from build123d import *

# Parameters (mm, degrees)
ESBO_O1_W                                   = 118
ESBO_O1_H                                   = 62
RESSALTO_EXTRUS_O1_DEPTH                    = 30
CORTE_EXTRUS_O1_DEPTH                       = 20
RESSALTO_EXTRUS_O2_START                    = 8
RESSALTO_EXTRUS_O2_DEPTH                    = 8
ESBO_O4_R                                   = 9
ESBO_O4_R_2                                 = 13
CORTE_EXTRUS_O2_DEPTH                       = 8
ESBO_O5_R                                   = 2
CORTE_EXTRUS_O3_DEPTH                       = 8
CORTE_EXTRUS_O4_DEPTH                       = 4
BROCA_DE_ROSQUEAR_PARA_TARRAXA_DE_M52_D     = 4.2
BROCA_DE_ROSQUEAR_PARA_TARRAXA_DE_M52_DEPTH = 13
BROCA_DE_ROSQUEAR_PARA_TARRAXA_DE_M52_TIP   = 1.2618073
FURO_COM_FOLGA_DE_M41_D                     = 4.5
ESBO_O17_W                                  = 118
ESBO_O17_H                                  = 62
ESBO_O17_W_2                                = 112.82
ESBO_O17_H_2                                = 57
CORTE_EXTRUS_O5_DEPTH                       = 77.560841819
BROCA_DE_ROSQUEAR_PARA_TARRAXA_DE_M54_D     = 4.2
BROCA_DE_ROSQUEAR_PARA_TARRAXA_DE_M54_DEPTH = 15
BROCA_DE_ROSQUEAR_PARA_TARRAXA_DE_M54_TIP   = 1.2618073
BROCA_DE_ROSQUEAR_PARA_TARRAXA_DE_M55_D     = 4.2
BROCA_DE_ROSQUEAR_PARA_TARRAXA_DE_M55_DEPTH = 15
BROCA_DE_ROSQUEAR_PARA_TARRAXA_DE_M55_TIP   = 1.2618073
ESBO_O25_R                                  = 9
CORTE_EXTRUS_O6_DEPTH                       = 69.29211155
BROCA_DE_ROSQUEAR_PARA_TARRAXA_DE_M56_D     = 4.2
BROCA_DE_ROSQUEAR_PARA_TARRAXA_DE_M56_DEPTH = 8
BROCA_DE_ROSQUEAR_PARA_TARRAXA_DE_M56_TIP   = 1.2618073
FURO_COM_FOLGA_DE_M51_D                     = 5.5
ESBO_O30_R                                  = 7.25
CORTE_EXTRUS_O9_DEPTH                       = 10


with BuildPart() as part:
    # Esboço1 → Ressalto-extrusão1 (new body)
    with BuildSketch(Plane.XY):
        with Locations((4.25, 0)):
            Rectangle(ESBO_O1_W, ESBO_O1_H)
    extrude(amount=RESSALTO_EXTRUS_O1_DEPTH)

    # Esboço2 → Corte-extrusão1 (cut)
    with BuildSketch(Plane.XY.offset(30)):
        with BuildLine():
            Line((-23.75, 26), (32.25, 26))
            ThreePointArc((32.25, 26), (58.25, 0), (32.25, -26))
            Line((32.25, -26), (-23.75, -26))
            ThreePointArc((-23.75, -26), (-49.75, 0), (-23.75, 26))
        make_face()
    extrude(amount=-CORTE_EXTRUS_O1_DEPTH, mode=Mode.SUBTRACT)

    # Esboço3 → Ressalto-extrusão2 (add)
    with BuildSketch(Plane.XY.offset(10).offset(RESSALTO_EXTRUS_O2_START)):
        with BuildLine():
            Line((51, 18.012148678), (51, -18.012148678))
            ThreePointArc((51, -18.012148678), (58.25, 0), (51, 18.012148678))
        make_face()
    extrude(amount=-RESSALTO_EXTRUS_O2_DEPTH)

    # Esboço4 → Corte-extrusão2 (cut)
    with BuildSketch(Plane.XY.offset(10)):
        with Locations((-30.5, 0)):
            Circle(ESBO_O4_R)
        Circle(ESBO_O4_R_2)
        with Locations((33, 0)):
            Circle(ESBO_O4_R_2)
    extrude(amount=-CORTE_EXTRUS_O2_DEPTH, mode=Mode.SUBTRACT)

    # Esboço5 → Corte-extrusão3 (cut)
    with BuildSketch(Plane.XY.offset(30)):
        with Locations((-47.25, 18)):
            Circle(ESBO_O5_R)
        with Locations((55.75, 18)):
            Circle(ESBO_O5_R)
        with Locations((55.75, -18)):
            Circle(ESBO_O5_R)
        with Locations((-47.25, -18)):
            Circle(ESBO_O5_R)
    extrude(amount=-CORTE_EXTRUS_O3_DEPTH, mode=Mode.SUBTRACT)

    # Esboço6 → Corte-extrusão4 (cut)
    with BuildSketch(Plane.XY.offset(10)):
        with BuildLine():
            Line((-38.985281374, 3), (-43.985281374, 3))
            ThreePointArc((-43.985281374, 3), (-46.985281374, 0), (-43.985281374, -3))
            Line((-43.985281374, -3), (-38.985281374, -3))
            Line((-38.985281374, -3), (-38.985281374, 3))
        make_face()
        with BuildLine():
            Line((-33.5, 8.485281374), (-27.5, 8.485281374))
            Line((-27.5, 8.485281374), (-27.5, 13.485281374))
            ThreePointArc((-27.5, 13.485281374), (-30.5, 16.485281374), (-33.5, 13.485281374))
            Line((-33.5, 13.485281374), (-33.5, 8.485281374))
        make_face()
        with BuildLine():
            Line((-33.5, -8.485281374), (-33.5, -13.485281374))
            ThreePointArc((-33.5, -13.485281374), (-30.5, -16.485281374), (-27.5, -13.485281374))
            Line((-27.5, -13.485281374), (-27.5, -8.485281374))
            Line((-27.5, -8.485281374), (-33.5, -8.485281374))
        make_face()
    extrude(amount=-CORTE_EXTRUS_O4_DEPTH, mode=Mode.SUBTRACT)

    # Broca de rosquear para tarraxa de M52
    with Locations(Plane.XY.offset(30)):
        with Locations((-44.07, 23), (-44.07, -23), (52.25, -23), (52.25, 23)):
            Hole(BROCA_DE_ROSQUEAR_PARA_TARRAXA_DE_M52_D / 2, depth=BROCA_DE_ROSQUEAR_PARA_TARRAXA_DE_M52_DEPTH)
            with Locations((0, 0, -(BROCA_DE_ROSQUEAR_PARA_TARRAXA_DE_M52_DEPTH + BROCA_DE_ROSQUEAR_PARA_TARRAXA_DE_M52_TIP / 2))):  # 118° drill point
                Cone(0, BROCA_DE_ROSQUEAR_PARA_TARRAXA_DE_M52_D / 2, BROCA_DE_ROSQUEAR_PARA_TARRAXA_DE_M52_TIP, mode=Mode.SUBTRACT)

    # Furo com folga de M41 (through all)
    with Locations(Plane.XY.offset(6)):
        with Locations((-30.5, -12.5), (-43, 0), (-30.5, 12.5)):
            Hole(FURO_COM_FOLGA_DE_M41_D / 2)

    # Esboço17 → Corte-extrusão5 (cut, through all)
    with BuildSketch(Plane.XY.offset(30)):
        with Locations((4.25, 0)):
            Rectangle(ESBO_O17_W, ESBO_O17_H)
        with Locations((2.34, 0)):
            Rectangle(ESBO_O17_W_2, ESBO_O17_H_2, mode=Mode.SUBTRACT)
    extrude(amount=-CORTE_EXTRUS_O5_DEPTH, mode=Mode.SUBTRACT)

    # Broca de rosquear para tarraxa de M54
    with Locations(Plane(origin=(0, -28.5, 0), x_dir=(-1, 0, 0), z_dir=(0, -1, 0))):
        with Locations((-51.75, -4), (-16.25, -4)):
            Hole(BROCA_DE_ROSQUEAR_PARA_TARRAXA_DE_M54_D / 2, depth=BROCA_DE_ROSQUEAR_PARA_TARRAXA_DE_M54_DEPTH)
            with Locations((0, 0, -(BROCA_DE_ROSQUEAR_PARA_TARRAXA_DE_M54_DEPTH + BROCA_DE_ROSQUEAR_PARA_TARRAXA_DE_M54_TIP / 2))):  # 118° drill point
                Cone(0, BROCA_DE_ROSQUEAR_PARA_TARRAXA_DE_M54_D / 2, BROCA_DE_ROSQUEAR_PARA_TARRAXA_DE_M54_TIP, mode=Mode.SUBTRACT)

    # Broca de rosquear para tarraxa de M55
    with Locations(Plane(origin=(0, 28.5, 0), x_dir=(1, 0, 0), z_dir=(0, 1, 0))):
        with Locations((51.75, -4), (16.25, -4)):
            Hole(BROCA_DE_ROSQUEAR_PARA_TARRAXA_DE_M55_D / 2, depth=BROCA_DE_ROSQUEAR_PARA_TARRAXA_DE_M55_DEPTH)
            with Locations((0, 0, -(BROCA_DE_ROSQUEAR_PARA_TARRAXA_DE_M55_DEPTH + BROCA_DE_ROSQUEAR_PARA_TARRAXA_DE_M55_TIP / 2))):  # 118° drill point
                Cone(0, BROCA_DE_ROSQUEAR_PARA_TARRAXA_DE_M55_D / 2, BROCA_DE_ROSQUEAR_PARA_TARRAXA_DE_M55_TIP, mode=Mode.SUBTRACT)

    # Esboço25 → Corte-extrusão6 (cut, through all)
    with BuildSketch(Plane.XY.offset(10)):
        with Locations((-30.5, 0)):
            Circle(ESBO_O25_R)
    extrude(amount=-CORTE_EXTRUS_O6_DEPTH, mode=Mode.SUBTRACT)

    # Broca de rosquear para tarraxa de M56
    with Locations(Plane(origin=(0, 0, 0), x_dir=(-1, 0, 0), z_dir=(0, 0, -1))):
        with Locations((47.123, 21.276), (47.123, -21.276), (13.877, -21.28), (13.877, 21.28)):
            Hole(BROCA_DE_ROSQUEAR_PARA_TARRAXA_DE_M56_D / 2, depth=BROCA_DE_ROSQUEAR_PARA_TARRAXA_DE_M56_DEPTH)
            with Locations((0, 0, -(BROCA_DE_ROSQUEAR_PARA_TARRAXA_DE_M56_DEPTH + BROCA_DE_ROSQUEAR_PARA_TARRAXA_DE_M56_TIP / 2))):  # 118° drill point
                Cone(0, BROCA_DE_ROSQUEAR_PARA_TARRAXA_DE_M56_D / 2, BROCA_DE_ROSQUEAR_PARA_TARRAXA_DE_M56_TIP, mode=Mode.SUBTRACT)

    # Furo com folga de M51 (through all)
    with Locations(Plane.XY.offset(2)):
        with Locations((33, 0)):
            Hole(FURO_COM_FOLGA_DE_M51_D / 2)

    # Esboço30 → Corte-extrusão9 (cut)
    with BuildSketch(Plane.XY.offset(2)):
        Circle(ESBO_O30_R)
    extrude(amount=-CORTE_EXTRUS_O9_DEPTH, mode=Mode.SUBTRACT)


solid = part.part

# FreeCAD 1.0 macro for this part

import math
import FreeCAD as App
import Part
import Sketcher

doc = App.newDocument("Part")
body = doc.addObject("PartDesign::Body", "Body")

sketch1 = body.newObject("Sketcher::SketchObject", "Sketch")
sketch1.AttachmentSupport = (doc.getObject("XY_Plane"), [""])
sketch1.MapMode = "FlatFace"
sketch1.addGeometry(Part.LineSegment(App.Vector(-55, 31, 0), App.Vector(-55, -31, 0)), False)
sketch1.addGeometry(Part.LineSegment(App.Vector(-55, -31, 0), App.Vector(63, -31, 0)), False)
sketch1.addGeometry(Part.LineSegment(App.Vector(63, -31, 0), App.Vector(63, 31, 0)), False)
sketch1.addGeometry(Part.LineSegment(App.Vector(63, 31, 0), App.Vector(-55, 31, 0)), False)
sketch1.addConstraint(Sketcher.Constraint("Coincident", 0, 2, 1, 1))
sketch1.addConstraint(Sketcher.Constraint("Coincident", 1, 2, 2, 1))
sketch1.addConstraint(Sketcher.Constraint("Coincident", 2, 2, 3, 1))
sketch1.addConstraint(Sketcher.Constraint("Coincident", 3, 2, 0, 1))
sketch1.addConstraint(Sketcher.Constraint("Vertical", 0))
sketch1.addConstraint(Sketcher.Constraint("Horizontal", 1))
sketch1.addConstraint(Sketcher.Constraint("Vertical", 2))
sketch1.addConstraint(Sketcher.Constraint("Horizontal", 3))
sketch1.addConstraint(Sketcher.Constraint("DistanceX", 1, 1, 1, 2, 118.0))
sketch1.addConstraint(Sketcher.Constraint("DistanceY", 0, 2, 0, 1, 62.0))
sketch1.addConstraint(Sketcher.Constraint("DistanceY", 0, 2, -1, 1, 31.0))
sketch1.addConstraint(Sketcher.Constraint("DistanceX", 0, 2, -1, 1, 54.75))
pad1 = body.newObject("PartDesign::Pad", "Pad")
pad1.Profile = sketch1
pad1.Length = 30

sketch2 = body.newObject("Sketcher::SketchObject", "Sketch001")
sketch2.AttachmentSupport = (doc.getObject("XY_Plane"), [""])
sketch2.MapMode = "FlatFace"
sketch2.AttachmentOffset = App.Placement(App.Vector(0, 0, 30), App.Rotation())
sketch2.addGeometry(Part.LineSegment(App.Vector(32, 26, 0), App.Vector(-24, 26, 0)), False)
sketch2.addGeometry(Part.ArcOfCircle(Part.Circle(App.Vector(-24, 0, 0), App.Vector(0, 0, 1), 26), math.radians(90), math.radians(270)), False)
sketch2.addGeometry(Part.LineSegment(App.Vector(-24, -26, 0), App.Vector(32, -26, 0)), False)
sketch2.addGeometry(Part.ArcOfCircle(Part.Circle(App.Vector(32, 0, 0), App.Vector(0, 0, 1), 26), math.radians(-90), math.radians(90)), False)
sketch2.addConstraint(Sketcher.Constraint("Tangent", 0, 2, 1, 1))
sketch2.addConstraint(Sketcher.Constraint("Tangent", 1, 2, 2, 1))
sketch2.addConstraint(Sketcher.Constraint("Tangent", 2, 2, 3, 1))
sketch2.addConstraint(Sketcher.Constraint("Tangent", 3, 2, 0, 1))
sketch2.addConstraint(Sketcher.Constraint("Horizontal", 0))
sketch2.addConstraint(Sketcher.Constraint("Horizontal", 2))
sketch2.addConstraint(Sketcher.Constraint("PointOnObject", 1, 3, -1))
sketch2.addConstraint(Sketcher.Constraint("Radius", 1, 26.0))
sketch2.addConstraint(Sketcher.Constraint("DistanceX", 0, 2, 0, 1, 56.0))
sketch2.addConstraint(Sketcher.Constraint("DistanceX", 1, 3, -1, 1, 23.75))
pocket1 = body.newObject("PartDesign::Pocket", "Pocket")
pocket1.Profile = sketch2
pocket1.Length = 20

sketch3 = body.newObject("Sketcher::SketchObject", "Sketch002")
sketch3.AttachmentSupport = (doc.getObject("XY_Plane"), [""])
sketch3.MapMode = "FlatFace"
sketch3.AttachmentOffset = App.Placement(App.Vector(0, 0, 18), App.Rotation())
sketch3.addGeometry(Part.LineSegment(App.Vector(51, 18, 0), App.Vector(51, -18, 0)), False)
sketch3.addGeometry(Part.ArcOfCircle(Part.Circle(App.Vector(32, 0, 0), App.Vector(0, 0, 1), 26), math.radians(-44), math.radians(44)), False)
sketch3.addConstraint(Sketcher.Constraint("Coincident", 0, 1, 1, 2))
sketch3.addConstraint(Sketcher.Constraint("Coincident", 1, 1, 0, 2))
sketch3.addConstraint(Sketcher.Constraint("Vertical", 0))
sketch3.addConstraint(Sketcher.Constraint("PointOnObject", 1, 3, -1))
sketch3.addConstraint(Sketcher.Constraint("Radius", 1, 26.0))
sketch3.addConstraint(Sketcher.Constraint("DistanceX", -1, 1, 0, 1, 51.0))
sketch3.addConstraint(Sketcher.Constraint("DistanceX", -1, 1, 1, 3, 32.25))
pad2 = body.newObject("PartDesign::Pad", "Pad001")
pad2.Profile = sketch3
pad2.Length = 8
pad2.Reversed = True

sketch4 = body.newObject("Sketcher::SketchObject", "Sketch003")
sketch4.AttachmentSupport = (doc.getObject("XY_Plane"), [""])
sketch4.MapMode = "FlatFace"
sketch4.AttachmentOffset = App.Placement(App.Vector(0, 0, 10), App.Rotation())
sketch4.addGeometry(Part.Circle(App.Vector(-30, 0, 0), App.Vector(0, 0, 1), 9), False)
sketch4.addGeometry(Part.Circle(App.Vector(0, 0, 0), App.Vector(0, 0, 1), 13), False)
sketch4.addGeometry(Part.Circle(App.Vector(33, 0, 0), App.Vector(0, 0, 1), 13), False)
sketch4.addConstraint(Sketcher.Constraint("Coincident", 1, 3, -1, 1))
sketch4.addConstraint(Sketcher.Constraint("Equal", 1, 2))
sketch4.addConstraint(Sketcher.Constraint("PointOnObject", 0, 3, -1))
sketch4.addConstraint(Sketcher.Constraint("PointOnObject", 2, 3, -1))
sketch4.addConstraint(Sketcher.Constraint("Diameter", 0, 18.0))
sketch4.addConstraint(Sketcher.Constraint("Diameter", 1, 26.0))
sketch4.addConstraint(Sketcher.Constraint("DistanceX", -1, 1, 2, 3, 33.0))
sketch4.addConstraint(Sketcher.Constraint("DistanceX", 0, 3, -1, 1, 30.5))
pocket2 = body.newObject("PartDesign::Pocket", "Pocket001")
pocket2.Profile = sketch4
pocket2.Length = 8

sketch5 = body.newObject("Sketcher::SketchObject", "Sketch004")
sketch5.AttachmentSupport = (doc.getObject("XY_Plane"), [""])
sketch5.MapMode = "FlatFace"
sketch5.AttachmentOffset = App.Placement(App.Vector(0, 0, 30), App.Rotation())
sketch5.addGeometry(Part.Circle(App.Vector(-47.2, 18, 0), App.Vector(0, 0, 1), 2), False)
sketch5.addGeometry(Part.Circle(App.Vector(55.8, 18, 0), App.Vector(0, 0, 1), 2), False)
sketch5.addGeometry(Part.Circle(App.Vector(55.8, -18, 0), App.Vector(0, 0, 1), 2), False)
sketch5.addGeometry(Part.Circle(App.Vector(-47.2, -18, 0), App.Vector(0, 0, 1), 2), False)
sketch5.addConstraint(Sketcher.Constraint("Equal", 0, 1))
sketch5.addConstraint(Sketcher.Constraint("Equal", 1, 2))
sketch5.addConstraint(Sketcher.Constraint("Equal", 2, 3))
sketch5.addConstraint(Sketcher.Constraint("Symmetric", 1, 3, 2, 3, -1))
sketch5.addConstraint(Sketcher.Constraint("Symmetric", 0, 3, 3, 3, -1))
sketch5.addConstraint(Sketcher.Constraint("Horizontal", 0, 3, 1, 3))
sketch5.addConstraint(Sketcher.Constraint("Diameter", 0, 4.0))
sketch5.addConstraint(Sketcher.Constraint("DistanceY", -1, 1, 0, 3, 18.0))
sketch5.addConstraint(Sketcher.Constraint("DistanceX", 0, 3, 1, 3, 103.0))
sketch5.addConstraint(Sketcher.Constraint("DistanceX", 0, 3, -1, 1, 47.25))
pocket3 = body.newObject("PartDesign::Pocket", "Pocket002")
pocket3.Profile = sketch5
pocket3.Length = 8

sketch6 = body.newObject("Sketcher::SketchObject", "Sketch005")
sketch6.AttachmentSupport = (doc.getObject("XY_Plane"), [""])
sketch6.MapMode = "FlatFace"
sketch6.AttachmentOffset = App.Placement(App.Vector(0, 0, 10), App.Rotation())
sketch6.addGeometry(Part.LineSegment(App.Vector(-39, 3, 0), App.Vector(-44, 3, 0)), False)
sketch6.addGeometry(Part.ArcOfCircle(Part.Circle(App.Vector(-44, 0, 0), App.Vector(0, 0, 1), 3), math.radians(90), math.radians(270)), False)
sketch6.addGeometry(Part.LineSegment(App.Vector(-44, -3, 0), App.Vector(-39, -3, 0)), False)
sketch6.addGeometry(Part.LineSegment(App.Vector(-39, -3, 0), App.Vector(-39, 3, 0)), False)
sketch6.addGeometry(Part.LineSegment(App.Vector(-33.5, 8.5, 0), App.Vector(-27.5, 8.5, 0)), False)
sketch6.addGeometry(Part.LineSegment(App.Vector(-27.5, 8.5, 0), App.Vector(-27.5, 13.5, 0)), False)
sketch6.addGeometry(Part.ArcOfCircle(Part.Circle(App.Vector(-30.5, 13.5, 0), App.Vector(0, 0, 1), 3), math.radians(0), math.radians(180)), False)
sketch6.addGeometry(Part.LineSegment(App.Vector(-33.5, 13.5, 0), App.Vector(-33.5, 8.5, 0)), False)
sketch6.addGeometry(Part.LineSegment(App.Vector(-33.5, -8.5, 0), App.Vector(-33.5, -13.5, 0)), False)
sketch6.addGeometry(Part.ArcOfCircle(Part.Circle(App.Vector(-30.5, -13.5, 0), App.Vector(0, 0, 1), 3), math.radians(180), math.radians(360)), False)
sketch6.addGeometry(Part.LineSegment(App.Vector(-27.5, -13.5, 0), App.Vector(-27.5, -8.5, 0)), False)
sketch6.addGeometry(Part.LineSegment(App.Vector(-27.5, -8.5, 0), App.Vector(-33.5, -8.5, 0)), False)
sketch6.addConstraint(Sketcher.Constraint("Tangent", 0, 2, 1, 1))
sketch6.addConstraint(Sketcher.Constraint("Tangent", 1, 2, 2, 1))
sketch6.addConstraint(Sketcher.Constraint("Coincident", 2, 2, 3, 1))
sketch6.addConstraint(Sketcher.Constraint("Coincident", 3, 2, 0, 1))
sketch6.addConstraint(Sketcher.Constraint("Coincident", 4, 2, 5, 1))
sketch6.addConstraint(Sketcher.Constraint("Tangent", 5, 2, 6, 1))
sketch6.addConstraint(Sketcher.Constraint("Tangent", 6, 2, 7, 1))
sketch6.addConstraint(Sketcher.Constraint("Coincident", 7, 2, 4, 1))
sketch6.addConstraint(Sketcher.Constraint("Tangent", 8, 2, 9, 1))
sketch6.addConstraint(Sketcher.Constraint("Tangent", 9, 2, 10, 1))
sketch6.addConstraint(Sketcher.Constraint("Coincident", 10, 2, 11, 1))
sketch6.addConstraint(Sketcher.Constraint("Coincident", 11, 2, 8, 1))
sketch6.addConstraint(Sketcher.Constraint("Horizontal", 0))
sketch6.addConstraint(Sketcher.Constraint("Horizontal", 2))
sketch6.addConstraint(Sketcher.Constraint("Vertical", 3))
sketch6.addConstraint(Sketcher.Constraint("Horizontal", 4))
sketch6.addConstraint(Sketcher.Constraint("Vertical", 5))
sketch6.addConstraint(Sketcher.Constraint("Vertical", 7))
sketch6.addConstraint(Sketcher.Constraint("Vertical", 8))
sketch6.addConstraint(Sketcher.Constraint("Vertical", 10))
sketch6.addConstraint(Sketcher.Constraint("Horizontal", 11))
sketch6.addConstraint(Sketcher.Constraint("Equal", 1, 6))
sketch6.addConstraint(Sketcher.Constraint("Equal", 6, 9))
sketch6.addConstraint(Sketcher.Constraint("Symmetric", 6, 3, 9, 3, -1))
sketch6.addConstraint(Sketcher.Constraint("PointOnObject", 1, 3, -1))
sketch6.addConstraint(Sketcher.Constraint("Equal", 2, 5))
sketch6.addConstraint(Sketcher.Constraint("Equal", 7, 8))
sketch6.addConstraint(Sketcher.Constraint("Radius", 1, 3.0))
sketch6.addConstraint(Sketcher.Constraint("DistanceX", 0, 2, 0, 1, 5.0))
sketch6.addConstraint(Sketcher.Constraint("DistanceX", 6, 3, -1, 1, 30.5))
sketch6.addConstraint(Sketcher.Constraint("DistanceX", 1, 3, -1, 1, 43.985281))
sketch6.addConstraint(Sketcher.Constraint("DistanceY", -1, 1, 6, 3, 13.485281))
pocket4 = body.newObject("PartDesign::Pocket", "Pocket003")
pocket4.Profile = sketch6
pocket4.Length = 4

sketch7 = body.newObject("Sketcher::SketchObject", "Sketch006")
sketch7.AttachmentSupport = (doc.getObject("XY_Plane"), [""])
sketch7.MapMode = "FlatFace"
sketch7.AttachmentOffset = App.Placement(App.Vector(0, 0, 30), App.Rotation())
sketch7.addGeometry(Part.Circle(App.Vector(-44.1, 23, 0), App.Vector(0, 0, 1), 2.1), False)
sketch7.addGeometry(Part.Circle(App.Vector(-44.1, -23, 0), App.Vector(0, 0, 1), 2.1), False)
sketch7.addGeometry(Part.Circle(App.Vector(52.2, -23, 0), App.Vector(0, 0, 1), 2.1), False)
sketch7.addGeometry(Part.Circle(App.Vector(52.2, 23, 0), App.Vector(0, 0, 1), 2.1), False)
sketch7.addConstraint(Sketcher.Constraint("Equal", 0, 1))
sketch7.addConstraint(Sketcher.Constraint("Equal", 1, 2))
sketch7.addConstraint(Sketcher.Constraint("Equal", 2, 3))
sketch7.addConstraint(Sketcher.Constraint("Symmetric", 0, 3, 1, 3, -1))
sketch7.addConstraint(Sketcher.Constraint("Symmetric", 2, 3, 3, 3, -1))
sketch7.addConstraint(Sketcher.Constraint("Horizontal", 1, 3, 2, 3))
sketch7.addConstraint(Sketcher.Constraint("Diameter", 0, 4.2))
sketch7.addConstraint(Sketcher.Constraint("DistanceY", -1, 1, 0, 3, 23.0))
sketch7.addConstraint(Sketcher.Constraint("DistanceX", 0, 3, -1, 1, 44.07))
sketch7.addConstraint(Sketcher.Constraint("DistanceX", -1, 1, 2, 3, 52.25))
doc.recompute()
hole = body.newObject("PartDesign::Hole", "Hole")
hole.Profile = sketch7
hole.ThreadType = "None"
hole.Diameter = 4.2
hole.DepthType = "Dimension"
hole.Depth = 13
hole.DrillPoint = "Angled"
hole.DrillPointAngle = 118

sketch8 = body.newObject("Sketcher::SketchObject", "Sketch007")
sketch8.AttachmentSupport = (doc.getObject("XY_Plane"), [""])
sketch8.MapMode = "FlatFace"
sketch8.AttachmentOffset = App.Placement(App.Vector(0, 0, 6), App.Rotation())
sketch8.addGeometry(Part.Circle(App.Vector(-30.5, -12.5, 0), App.Vector(0, 0, 1), 2.2), False)
sketch8.addGeometry(Part.Circle(App.Vector(-43, 0, 0), App.Vector(0, 0, 1), 2.2), False)
sketch8.addGeometry(Part.Circle(App.Vector(-30.5, 12.5, 0), App.Vector(0, 0, 1), 2.2), False)
sketch8.addConstraint(Sketcher.Constraint("Equal", 0, 1))
sketch8.addConstraint(Sketcher.Constraint("Equal", 1, 2))
sketch8.addConstraint(Sketcher.Constraint("Symmetric", 0, 3, 2, 3, -1))
sketch8.addConstraint(Sketcher.Constraint("PointOnObject", 1, 3, -1))
sketch8.addConstraint(Sketcher.Constraint("Diameter", 0, 4.5))
sketch8.addConstraint(Sketcher.Constraint("DistanceX", 1, 3, -1, 1, 43.0))
sketch8.addConstraint(Sketcher.Constraint("DistanceY", 0, 3, 2, 3, 25.0))
sketch8.addConstraint(Sketcher.Constraint("DistanceX", 0, 3, -1, 1, 30.5))
doc.recompute()
hole2 = body.newObject("PartDesign::Hole", "Hole001")
hole2.Profile = sketch8
hole2.ThreadType = "None"
hole2.Diameter = 4.5
hole2.DepthType = "ThroughAll"

sketch9 = body.newObject("Sketcher::SketchObject", "Sketch008")
sketch9.AttachmentSupport = (doc.getObject("XY_Plane"), [""])
sketch9.MapMode = "FlatFace"
sketch9.AttachmentOffset = App.Placement(App.Vector(0, 0, 30), App.Rotation())
sketch9.addGeometry(Part.LineSegment(App.Vector(-55, 31, 0), App.Vector(-55, -31, 0)), False)
sketch9.addGeometry(Part.LineSegment(App.Vector(-55, -31, 0), App.Vector(63, -31, 0)), False)
sketch9.addGeometry(Part.LineSegment(App.Vector(63, -31, 0), App.Vector(63, 31, 0)), False)
sketch9.addGeometry(Part.LineSegment(App.Vector(63, 31, 0), App.Vector(-55, 31, 0)), False)
sketch9.addGeometry(Part.LineSegment(App.Vector(59, -28, 0), App.Vector(-54, -28, 0)), False)
sketch9.addGeometry(Part.LineSegment(App.Vector(-54, -28, 0), App.Vector(-54, 28, 0)), False)
sketch9.addGeometry(Part.LineSegment(App.Vector(-54, 28, 0), App.Vector(59, 28, 0)), False)
sketch9.addGeometry(Part.LineSegment(App.Vector(59, 28, 0), App.Vector(59, -28, 0)), False)
sketch9.addConstraint(Sketcher.Constraint("Coincident", 0, 2, 1, 1))
sketch9.addConstraint(Sketcher.Constraint("Coincident", 1, 2, 2, 1))
sketch9.addConstraint(Sketcher.Constraint("Coincident", 2, 2, 3, 1))
sketch9.addConstraint(Sketcher.Constraint("Coincident", 3, 2, 0, 1))
sketch9.addConstraint(Sketcher.Constraint("Coincident", 4, 2, 5, 1))
sketch9.addConstraint(Sketcher.Constraint("Coincident", 5, 2, 6, 1))
sketch9.addConstraint(Sketcher.Constraint("Coincident", 6, 2, 7, 1))
sketch9.addConstraint(Sketcher.Constraint("Coincident", 7, 2, 4, 1))
sketch9.addConstraint(Sketcher.Constraint("Vertical", 0))
sketch9.addConstraint(Sketcher.Constraint("Horizontal", 1))
sketch9.addConstraint(Sketcher.Constraint("Vertical", 2))
sketch9.addConstraint(Sketcher.Constraint("Horizontal", 3))
sketch9.addConstraint(Sketcher.Constraint("Horizontal", 4))
sketch9.addConstraint(Sketcher.Constraint("Vertical", 5))
sketch9.addConstraint(Sketcher.Constraint("Horizontal", 6))
sketch9.addConstraint(Sketcher.Constraint("Vertical", 7))
sketch9.addConstraint(Sketcher.Constraint("DistanceX", 1, 1, 1, 2, 118.0))
sketch9.addConstraint(Sketcher.Constraint("DistanceY", 0, 2, 0, 1, 62.0))
sketch9.addConstraint(Sketcher.Constraint("DistanceY", 5, 1, 5, 2, 57.0))
sketch9.addConstraint(Sketcher.Constraint("DistanceY", 0, 2, -1, 1, 31.0))
sketch9.addConstraint(Sketcher.Constraint("DistanceX", 4, 2, 4, 1, 112.82))
sketch9.addConstraint(Sketcher.Constraint("DistanceY", 4, 2, -1, 1, 28.5))
sketch9.addConstraint(Sketcher.Constraint("DistanceX", 6, 2, 2, 2, 4.5))
sketch9.addConstraint(Sketcher.Constraint("DistanceX", 0, 2, -1, 1, 54.75))
pocket5 = body.newObject("PartDesign::Pocket", "Pocket004")
pocket5.Profile = sketch9
pocket5.Type = "ThroughAll"

sketch10 = body.newObject("Sketcher::SketchObject", "Sketch009")
sketch10.AttachmentSupport = (doc.getObject("XZ_Plane"), [""])
sketch10.MapMode = "FlatFace"
sketch10.AttachmentOffset = App.Placement(App.Vector(0, 0, 28.5), App.Rotation())
sketch10.addGeometry(Part.Circle(App.Vector(51.8, 4, 0), App.Vector(0, 0, 1), 2.1), False)
sketch10.addGeometry(Part.Circle(App.Vector(16.2, 4, 0), App.Vector(0, 0, 1), 2.1), False)
sketch10.addConstraint(Sketcher.Constraint("Equal", 0, 1))
sketch10.addConstraint(Sketcher.Constraint("Horizontal", 0, 3, 1, 3))
sketch10.addConstraint(Sketcher.Constraint("Diameter", 0, 4.2))
sketch10.addConstraint(Sketcher.Constraint("DistanceY", -1, 1, 0, 3, 4.0))
sketch10.addConstraint(Sketcher.Constraint("DistanceX", 1, 3, 0, 3, 35.5))
sketch10.addConstraint(Sketcher.Constraint("DistanceX", -1, 1, 0, 3, 51.75))
doc.recompute()
hole3 = body.newObject("PartDesign::Hole", "Hole002")
hole3.Profile = sketch10
hole3.ThreadType = "None"
hole3.Diameter = 4.2
hole3.DepthType = "Dimension"
hole3.Depth = 15
hole3.DrillPoint = "Angled"
hole3.DrillPointAngle = 118

sketch11 = body.newObject("Sketcher::SketchObject", "Sketch010")
sketch11.AttachmentSupport = (doc.getObject("XZ_Plane"), [""])
sketch11.MapMode = "FlatFace"
sketch11.AttachmentOffset = App.Placement(App.Vector(0, 0, -28.5), App.Rotation())
sketch11.addGeometry(Part.Circle(App.Vector(51.8, 4, 0), App.Vector(0, 0, 1), 2.1), False)
sketch11.addGeometry(Part.Circle(App.Vector(16.2, 4, 0), App.Vector(0, 0, 1), 2.1), False)
sketch11.addConstraint(Sketcher.Constraint("Equal", 0, 1))
sketch11.addConstraint(Sketcher.Constraint("Horizontal", 0, 3, 1, 3))
sketch11.addConstraint(Sketcher.Constraint("Diameter", 0, 4.2))
sketch11.addConstraint(Sketcher.Constraint("DistanceY", -1, 1, 0, 3, 4.0))
sketch11.addConstraint(Sketcher.Constraint("DistanceX", 1, 3, 0, 3, 35.5))
sketch11.addConstraint(Sketcher.Constraint("DistanceX", -1, 1, 0, 3, 51.75))
doc.recompute()
hole4 = body.newObject("PartDesign::Hole", "Hole003")
hole4.Profile = sketch11
hole4.ThreadType = "None"
hole4.Diameter = 4.2
hole4.DepthType = "Dimension"
hole4.Depth = 15
hole4.DrillPoint = "Angled"
hole4.DrillPointAngle = 118
hole4.Reversed = True

sketch12 = body.newObject("Sketcher::SketchObject", "Sketch011")
sketch12.AttachmentSupport = (doc.getObject("XY_Plane"), [""])
sketch12.MapMode = "FlatFace"
sketch12.AttachmentOffset = App.Placement(App.Vector(0, 0, 10), App.Rotation())
sketch12.addGeometry(Part.Circle(App.Vector(-30, 0, 0), App.Vector(0, 0, 1), 9), False)
sketch12.addConstraint(Sketcher.Constraint("PointOnObject", 0, 3, -1))
sketch12.addConstraint(Sketcher.Constraint("Diameter", 0, 18.0))
sketch12.addConstraint(Sketcher.Constraint("DistanceX", 0, 3, -1, 1, 30.5))
pocket6 = body.newObject("PartDesign::Pocket", "Pocket005")
pocket6.Profile = sketch12
pocket6.Type = "ThroughAll"

sketch13 = body.newObject("Sketcher::SketchObject", "Sketch012")
sketch13.AttachmentSupport = (doc.getObject("XY_Plane"), [""])
sketch13.MapMode = "FlatFace"
sketch13.addGeometry(Part.Circle(App.Vector(-47.1, 21.3, 0), App.Vector(0, 0, 1), 2.1), False)
sketch13.addGeometry(Part.Circle(App.Vector(-47.1, -21.3, 0), App.Vector(0, 0, 1), 2.1), False)
sketch13.addGeometry(Part.Circle(App.Vector(-13.9, -21.3, 0), App.Vector(0, 0, 1), 2.1), False)
sketch13.addGeometry(Part.Circle(App.Vector(-13.9, 21.3, 0), App.Vector(0, 0, 1), 2.1), False)
sketch13.addConstraint(Sketcher.Constraint("Equal", 0, 1))
sketch13.addConstraint(Sketcher.Constraint("Equal", 1, 2))
sketch13.addConstraint(Sketcher.Constraint("Equal", 2, 3))
sketch13.addConstraint(Sketcher.Constraint("Symmetric", 0, 3, 1, 3, -1))
sketch13.addConstraint(Sketcher.Constraint("Symmetric", 2, 3, 3, 3, -1))
sketch13.addConstraint(Sketcher.Constraint("Diameter", 0, 4.2))
sketch13.addConstraint(Sketcher.Constraint("DistanceY", 2, 3, -1, 1, 21.28))
sketch13.addConstraint(Sketcher.Constraint("DistanceX", 0, 3, -1, 1, 47.123))
sketch13.addConstraint(Sketcher.Constraint("DistanceY", -1, 1, 0, 3, 21.276))
sketch13.addConstraint(Sketcher.Constraint("DistanceX", 2, 3, -1, 1, 13.877))
doc.recompute()
hole5 = body.newObject("PartDesign::Hole", "Hole004")
hole5.Profile = sketch13
hole5.ThreadType = "None"
hole5.Diameter = 4.2
hole5.DepthType = "Dimension"
hole5.Depth = 8
hole5.DrillPoint = "Angled"
hole5.DrillPointAngle = 118
hole5.Reversed = True

sketch14 = body.newObject("Sketcher::SketchObject", "Sketch013")
sketch14.AttachmentSupport = (doc.getObject("XY_Plane"), [""])
sketch14.MapMode = "FlatFace"
sketch14.AttachmentOffset = App.Placement(App.Vector(0, 0, 2), App.Rotation())
sketch14.addGeometry(Part.Circle(App.Vector(33, 0, 0), App.Vector(0, 0, 1), 2.8), False)
sketch14.addConstraint(Sketcher.Constraint("PointOnObject", 0, 3, -1))
sketch14.addConstraint(Sketcher.Constraint("Diameter", 0, 5.5))
sketch14.addConstraint(Sketcher.Constraint("DistanceX", -1, 1, 0, 3, 33.0))
doc.recompute()
hole6 = body.newObject("PartDesign::Hole", "Hole005")
hole6.Profile = sketch14
hole6.ThreadType = "None"
hole6.Diameter = 5.5
hole6.DepthType = "ThroughAll"

sketch15 = body.newObject("Sketcher::SketchObject", "Sketch014")
sketch15.AttachmentSupport = (doc.getObject("XY_Plane"), [""])
sketch15.MapMode = "FlatFace"
sketch15.AttachmentOffset = App.Placement(App.Vector(0, 0, 2), App.Rotation())
sketch15.addGeometry(Part.Circle(App.Vector(0, 0, 0), App.Vector(0, 0, 1), 7), False)
sketch15.addConstraint(Sketcher.Constraint("Coincident", 0, 3, -1, 1))
sketch15.addConstraint(Sketcher.Constraint("Diameter", 0, 14.5))
pocket7 = body.newObject("PartDesign::Pocket", "Pocket006")
pocket7.Profile = sketch15
pocket7.Length = 10

doc.recompute()
